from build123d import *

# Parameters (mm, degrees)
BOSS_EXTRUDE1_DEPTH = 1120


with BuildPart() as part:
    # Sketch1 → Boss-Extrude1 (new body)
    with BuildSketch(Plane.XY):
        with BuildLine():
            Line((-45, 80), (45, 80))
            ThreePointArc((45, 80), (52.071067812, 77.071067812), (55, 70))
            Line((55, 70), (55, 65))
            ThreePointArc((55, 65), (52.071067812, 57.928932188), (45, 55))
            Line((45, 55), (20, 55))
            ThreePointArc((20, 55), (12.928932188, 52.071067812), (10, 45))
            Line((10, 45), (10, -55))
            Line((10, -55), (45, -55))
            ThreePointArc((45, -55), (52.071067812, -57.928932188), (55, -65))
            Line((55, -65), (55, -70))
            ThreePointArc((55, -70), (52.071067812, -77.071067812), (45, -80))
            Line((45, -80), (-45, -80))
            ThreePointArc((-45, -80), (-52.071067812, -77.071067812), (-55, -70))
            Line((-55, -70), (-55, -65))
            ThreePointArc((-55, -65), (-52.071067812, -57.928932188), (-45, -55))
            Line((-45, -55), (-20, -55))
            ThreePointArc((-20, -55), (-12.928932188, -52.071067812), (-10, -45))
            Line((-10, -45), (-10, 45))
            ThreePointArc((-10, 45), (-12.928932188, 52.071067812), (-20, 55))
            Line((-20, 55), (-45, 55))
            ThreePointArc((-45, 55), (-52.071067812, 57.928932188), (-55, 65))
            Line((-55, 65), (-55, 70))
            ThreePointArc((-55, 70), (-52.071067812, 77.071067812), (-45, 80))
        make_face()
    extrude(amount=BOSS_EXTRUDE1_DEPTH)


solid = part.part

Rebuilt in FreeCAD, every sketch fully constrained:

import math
import FreeCAD as App
import Part
import Sketcher
from FreeCAD import Vector
Q = App.Units.Quantity

doc = App.newDocument("Part")
params = doc.addObject("Spreadsheet::Sheet", "Params")
for row, (alias, value) in enumerate([
    ("sketch1_radius", "10 mm"),
    ("sketch1_width", "90 mm"),
    ("sketch1_width2", "25 mm"),
    ("sketch1_height", "5 mm"),
    ("pad1_length", "1120 mm"),
], start=1):
    params.set(f"A{row}", alias)
    params.set(f"B{row}", "=" + value)
    params.setAlias(f"B{row}", alias)

body = doc.addObject("PartDesign::Body", "Body")

sketch1 = doc.addObject("Sketcher::SketchObject", "Sketch")
body.addObject(sketch1)
sketch1.AttachmentSupport = (doc.XY_Plane, [""])
sketch1.MapMode = "FlatFace"
sketch1.addGeometry(Part.LineSegment(Vector(45, 80, 0), Vector(-45, 80, 0)), False)
sketch1.addGeometry(Part.ArcOfCircle(Part.Circle(Vector(-45, 70, 0), Vector(0, 0, 1), 10), math.radians(90), math.radians(180)), False)
sketch1.addGeometry(Part.LineSegment(Vector(-55, 70, 0), Vector(-55, 65, 0)), False)
sketch1.addGeometry(Part.ArcOfCircle(Part.Circle(Vector(-45, 65, 0), Vector(0, 0, 1), 10), math.radians(180), math.radians(270)), False)
sketch1.addGeometry(Part.LineSegment(Vector(-45, 55, 0), Vector(-20, 55, 0)), False)
sketch1.addGeometry(Part.ArcOfCircle(Part.Circle(Vector(-20, 45, 0), Vector(0, 0, 1), 10), math.radians(0), math.radians(90)), False)
sketch1.addGeometry(Part.LineSegment(Vector(-10, 45, 0), Vector(-10, -45, 0)), False)
sketch1.addGeometry(Part.ArcOfCircle(Part.Circle(Vector(-20, -45, 0), Vector(0, 0, 1), 10), math.radians(-90), math.radians(0)), False)
sketch1.addGeometry(Part.LineSegment(Vector(-20, -55, 0), Vector(-45, -55, 0)), False)
sketch1.addGeometry(Part.ArcOfCircle(Part.Circle(Vector(-45, -65, 0), Vector(0, 0, 1), 10), math.radians(90), math.radians(180)), False)
sketch1.addGeometry(Part.LineSegment(Vector(-55, -65, 0), Vector(-55, -70, 0)), False)
sketch1.addGeometry(Part.ArcOfCircle(Part.Circle(Vector(-45, -70, 0), Vector(0, 0, 1), 10), math.radians(180), math.radians(270)), False)
sketch1.addGeometry(Part.LineSegment(Vector(-45, -80, 0), Vector(45, -80, 0)), False)
sketch1.addGeometry(Part.ArcOfCircle(Part.Circle(Vector(45, -70, 0), Vector(0, 0, 1), 10), math.radians(-90), math.radians(0)), False)
sketch1.addGeometry(Part.LineSegment(Vector(55, -70, 0), Vector(55, -65, 0)), False)
sketch1.addGeometry(Part.ArcOfCircle(Part.Circle(Vector(45, -65, 0), Vector(0, 0, 1), 10), math.radians(0), math.radians(90)), False)
sketch1.addGeometry(Part.LineSegment(Vector(45, -55, 0), Vector(10, -55, 0)), False)
sketch1.addGeometry(Part.LineSegment(Vector(10, -55, 0), Vector(10, 45, 0)), False)
sketch1.addGeometry(Part.ArcOfCircle(Part.Circle(Vector(20, 45, 0), Vector(0, 0, 1), 10), math.radians(90), math.radians(180)), False)
sketch1.addGeometry(Part.LineSegment(Vector(20, 55, 0), Vector(45, 55, 0)), False)
sketch1.addGeometry(Part.ArcOfCircle(Part.Circle(Vector(45, 65, 0), Vector(0, 0, 1), 10), math.radians(-90), math.radians(0)), False)
sketch1.addGeometry(Part.LineSegment(Vector(55, 65, 0), Vector(55, 70, 0)), False)
sketch1.addGeometry(Part.ArcOfCircle(Part.Circle(Vector(45, 70, 0), Vector(0, 0, 1), 10), math.radians(0), math.radians(90)), False)
sketch1.addConstraint(Sketcher.Constraint("Tangent", 0, 2, 1, 1))
sketch1.addConstraint(Sketcher.Constraint("Tangent", 1, 2, 2, 1))
sketch1.addConstraint(Sketcher.Constraint("Tangent", 2, 2, 3, 1))
sketch1.addConstraint(Sketcher.Constraint("Tangent", 3, 2, 4, 1))
sketch1.addConstraint(Sketcher.Constraint("Tangent", 4, 2, 5, 2))
sketch1.addConstraint(Sketcher.Constraint("Tangent", 5, 1, 6, 1))
sketch1.addConstraint(Sketcher.Constraint("Tangent", 6, 2, 7, 2))
sketch1.addConstraint(Sketcher.Constraint("Tangent", 7, 1, 8, 1))
sketch1.addConstraint(Sketcher.Constraint("Tangent", 8, 2, 9, 1))
sketch1.addConstraint(Sketcher.Constraint("Tangent", 9, 2, 10, 1))
sketch1.addConstraint(Sketcher.Constraint("Tangent", 10, 2, 11, 1))
sketch1.addConstraint(Sketcher.Constraint("Tangent", 11, 2, 12, 1))
sketch1.addConstraint(Sketcher.Constraint("Tangent", 12, 2, 13, 1))
sketch1.addConstraint(Sketcher.Constraint("Tangent", 13, 2, 14, 1))
sketch1.addConstraint(Sketcher.Constraint("Tangent", 14, 2, 15, 1))
sketch1.addConstraint(Sketcher.Constraint("Tangent", 15, 2, 16, 1))
sketch1.addConstraint(Sketcher.Constraint("Coincident", 16, 2, 17, 1))
sketch1.addConstraint(Sketcher.Constraint("Tangent", 17, 2, 18, 2))
sketch1.addConstraint(Sketcher.Constraint("Tangent", 18, 1, 19, 1))
sketch1.addConstraint(Sketcher.Constraint("Tangent", 19, 2, 20, 1))
sketch1.addConstraint(Sketcher.Constraint("Tangent", 20, 2, 21, 1))
sketch1.addConstraint(Sketcher.Constraint("Tangent", 21, 2, 22, 1))
sketch1.addConstraint(Sketcher.Constraint("Tangent", 22, 2, 0, 1))
sketch1.addConstraint(Sketcher.Constraint("Horizontal", 0))
sketch1.addConstraint(Sketcher.Constraint("Vertical", 2))
sketch1.addConstraint(Sketcher.Constraint("Horizontal", 4))
sketch1.addConstraint(Sketcher.Constraint("Vertical", 6))
sketch1.addConstraint(Sketcher.Constraint("Horizontal", 8))
sketch1.addConstraint(Sketcher.Constraint("Vertical", 10))
sketch1.addConstraint(Sketcher.Constraint("Horizontal", 12))
sketch1.addConstraint(Sketcher.Constraint("Vertical", 14))
sketch1.addConstraint(Sketcher.Constraint("Horizontal", 16))
sketch1.addConstraint(Sketcher.Constraint("Vertical", 17))
sketch1.addConstraint(Sketcher.Constraint("Horizontal", 19))
sketch1.addConstraint(Sketcher.Constraint("Vertical", 21))
sketch1.addConstraint(Sketcher.Constraint("Equal", 1, 3))
sketch1.addConstraint(Sketcher.Constraint("Equal", 3, 5))
sketch1.addConstraint(Sketcher.Constraint("Equal", 5, 7))
sketch1.addConstraint(Sketcher.Constraint("Equal", 7, 9))
sketch1.addConstraint(Sketcher.Constraint("Equal", 9, 11))
sketch1.addConstraint(Sketcher.Constraint("Equal", 11, 13))
sketch1.addConstraint(Sketcher.Constraint("Equal", 13, 15))
sketch1.addConstraint(Sketcher.Constraint("Equal", 15, 18))
sketch1.addConstraint(Sketcher.Constraint("Equal", 18, 20))
sketch1.addConstraint(Sketcher.Constraint("Equal", 20, 22))
sketch1.addConstraint(Sketcher.Constraint("Symmetric", 1, 3, 13, 3, -1, 1))
sketch1.addConstraint(Sketcher.Constraint("Symmetric", 7, 3, 18, 3, -1, 1))
sketch1.addConstraint(Sketcher.Constraint("Symmetric", 9, 3, 15, 3, -2))
sketch1.addConstraint(Sketcher.Constraint("Symmetric", 3, 3, 20, 3, -2))
sketch1.addConstraint(Sketcher.Constraint("Equal", 12, 6))
sketch1.addConstraint(Sketcher.Constraint("Radius", 1, Q("10 mm")))
sketch1.addConstraint(Sketcher.Constraint("DistanceX", 0, 2, 0, 1, Q("90 mm")))
sketch1.addConstraint(Sketcher.Constraint("DistanceX", 4, 1, 4, 2, Q("25 mm")))
sketch1.addConstraint(Sketcher.Constraint("DistanceY", 2, 2, 2, 1, Q("5 mm")))
sketch1.setExpression("Constraints[50]", "Params.sketch1_radius")
sketch1.setExpression("Constraints[51]", "Params.sketch1_width")
sketch1.setExpression("Constraints[52]", "Params.sketch1_width2")
sketch1.setExpression("Constraints[53]", "Params.sketch1_height")
pad1 = doc.addObject("PartDesign::Pad", "Pad")
body.addObject(pad1)
pad1.Profile = sketch1
pad1.setExpression("Length", "Params.pad1_length")

doc.recompute()
